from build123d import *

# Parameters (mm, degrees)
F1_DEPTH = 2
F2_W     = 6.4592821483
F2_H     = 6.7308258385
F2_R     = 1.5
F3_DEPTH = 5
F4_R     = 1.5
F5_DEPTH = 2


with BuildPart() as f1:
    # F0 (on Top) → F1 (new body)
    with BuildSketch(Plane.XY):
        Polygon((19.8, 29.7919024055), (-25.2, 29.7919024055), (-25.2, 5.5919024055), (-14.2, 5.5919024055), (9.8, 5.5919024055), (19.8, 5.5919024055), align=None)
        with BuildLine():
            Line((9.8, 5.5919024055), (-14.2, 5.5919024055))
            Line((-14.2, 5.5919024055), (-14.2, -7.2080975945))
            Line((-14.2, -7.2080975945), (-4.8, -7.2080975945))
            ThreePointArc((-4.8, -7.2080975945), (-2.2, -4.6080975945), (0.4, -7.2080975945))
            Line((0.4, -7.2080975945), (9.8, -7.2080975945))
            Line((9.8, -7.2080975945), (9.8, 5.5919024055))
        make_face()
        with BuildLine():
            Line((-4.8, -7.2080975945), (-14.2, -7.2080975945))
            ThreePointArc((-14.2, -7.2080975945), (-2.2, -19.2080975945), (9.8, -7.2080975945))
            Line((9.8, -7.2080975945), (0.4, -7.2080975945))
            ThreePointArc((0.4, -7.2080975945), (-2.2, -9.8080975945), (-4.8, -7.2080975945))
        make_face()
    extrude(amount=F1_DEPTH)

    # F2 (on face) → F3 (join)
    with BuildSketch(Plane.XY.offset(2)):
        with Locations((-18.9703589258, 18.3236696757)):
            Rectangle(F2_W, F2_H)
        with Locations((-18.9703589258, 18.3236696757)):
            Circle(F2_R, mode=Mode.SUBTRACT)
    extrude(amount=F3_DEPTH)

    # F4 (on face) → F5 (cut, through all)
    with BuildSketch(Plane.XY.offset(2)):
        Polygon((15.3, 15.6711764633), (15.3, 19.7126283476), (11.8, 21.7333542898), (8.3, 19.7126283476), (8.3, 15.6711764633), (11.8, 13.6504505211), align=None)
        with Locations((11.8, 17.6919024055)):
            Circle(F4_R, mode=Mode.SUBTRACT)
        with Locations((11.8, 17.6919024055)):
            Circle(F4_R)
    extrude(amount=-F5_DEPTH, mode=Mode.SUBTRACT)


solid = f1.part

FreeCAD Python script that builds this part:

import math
import FreeCAD as App
import Part
import Sketcher
from FreeCAD import Vector
Q = App.Units.Quantity

doc = App.newDocument("Part")
body = doc.addObject("PartDesign::Body", "Body")

# Sketch on XY plane
sketch1 = body.newObject("Sketcher::SketchObject", "Sketch")
sketch1.AttachmentSupport = (doc.getObject("XY_Plane"), [""])
sketch1.MapMode = "FlatFace"
sketch1.addGeometry([
    Part.LineSegment(Vector(19.8, 29.8, 0), Vector(-25.2, 29.8, 0)),  # 0
    Part.LineSegment(Vector(-25.2, 29.8, 0), Vector(-25.2, 5.6, 0)),  # 1
    Part.LineSegment(Vector(-25.2, 5.6, 0), Vector(-14.2, 5.6, 0)),  # 2
    Part.LineSegment(Vector(-14.2, 5.6, 0), Vector(-14.2, -7.2, 0)),  # 3
    Part.ArcOfCircle(Part.Circle(Vector(-2.2, -7.2, 0), Vector(0, 0, 1), 12), math.radians(180), math.radians(360)),  # 4
    Part.LineSegment(Vector(9.8, -7.2, 0), Vector(9.8, 5.6, 0)),  # 5
    Part.LineSegment(Vector(9.8, 5.6, 0), Vector(19.8, 5.6, 0)),  # 6
    Part.LineSegment(Vector(19.8, 5.6, 0), Vector(19.8, 29.8, 0)),  # 7
    Part.Circle(Vector(-2.2, -7.2, 0), Vector(0, 0, 1), 2.6),  # 8
], False)
sketch1.addConstraint([
    Sketcher.Constraint("Coincident", 0, 2, 1, 1),
    Sketcher.Constraint("Coincident", 1, 2, 2, 1),
    Sketcher.Constraint("Coincident", 2, 2, 3, 1),
    Sketcher.Constraint("Tangent", 3, 2, 4, 1),
    Sketcher.Constraint("Tangent", 4, 2, 5, 1),
    Sketcher.Constraint("Coincident", 5, 2, 6, 1),
    Sketcher.Constraint("Coincident", 6, 2, 7, 1),
    Sketcher.Constraint("Coincident", 7, 2, 0, 1),
    Sketcher.Constraint("Horizontal", 0),
    Sketcher.Constraint("Vertical", 1),
    Sketcher.Constraint("Horizontal", 2),
    Sketcher.Constraint("Vertical", 3),
    Sketcher.Constraint("Vertical", 5),
    Sketcher.Constraint("Horizontal", 6),
    Sketcher.Constraint("Vertical", 7),
    Sketcher.Constraint("Coincident", 8, 3, 4, 3),
    Sketcher.Constraint("Horizontal", 2, 2, 5, 2),
    Sketcher.Constraint("Radius", 4, 12.0),
    Sketcher.Constraint("Diameter", 8, 5.2),
    Sketcher.Constraint("DistanceX", 0, 2, 0, 1, 45.0),
    Sketcher.Constraint("DistanceX", 2, 1, 2, 2, 11.0),
    Sketcher.Constraint("DistanceY", 1, 2, 1, 1, 24.2),
    Sketcher.Constraint("DistanceY", 3, 2, 3, 1, 12.8),
    Sketcher.Constraint("DistanceX", 4, 3, -1, 1, 2.2),
    Sketcher.Constraint("DistanceY", 4, 3, -1, 1, 7.208098),
])
pad1 = body.newObject("PartDesign::Pad", "Pad")
pad1.Profile = sketch1
pad1.Length = 2

# Sketch on XY plane
sketch2 = body.newObject("Sketcher::SketchObject", "Sketch001")
sketch2.AttachmentSupport = (doc.getObject("XY_Plane"), [""])
sketch2.MapMode = "FlatFace"
sketch2.AttachmentOffset = App.Placement(Vector(0, 0, 2), App.Rotation())
sketch2.addGeometry([
    Part.LineSegment(Vector(-22.2, 21.7, 0), Vector(-22.2, 15, 0)),  # 0
    Part.LineSegment(Vector(-22.2, 15, 0), Vector(-15.7, 15, 0)),  # 1
    Part.LineSegment(Vector(-15.7, 15, 0), Vector(-15.7, 21.7, 0)),  # 2
    Part.LineSegment(Vector(-15.7, 21.7, 0), Vector(-22.2, 21.7, 0)),  # 3
    Part.Circle(Vector(-19, 18.3, 0), Vector(0, 0, 1), 1.5),  # 4
], False)
sketch2.addConstraint([
    Sketcher.Constraint("Coincident", 0, 2, 1, 1),
    Sketcher.Constraint("Coincident", 1, 2, 2, 1),
    Sketcher.Constraint("Coincident", 2, 2, 3, 1),
    Sketcher.Constraint("Coincident", 3, 2, 0, 1),
    Sketcher.Constraint("Vertical", 0),
    Sketcher.Constraint("Horizontal", 1),
    Sketcher.Constraint("Vertical", 2),
    Sketcher.Constraint("Horizontal", 3),
    Sketcher.Constraint("Diameter", 4, 3.0),
    Sketcher.Constraint("DistanceX", 0, 2, -1, 1, 22.2),
    Sketcher.Constraint("DistanceX", 1, 1, 1, 2, 6.459282),
    Sketcher.Constraint("DistanceY", 0, 2, 0, 1, 6.730826),
    Sketcher.Constraint("DistanceX", 4, 3, -1, 1, 18.970359),
    Sketcher.Constraint("DistanceY", -1, 1, 4, 3, 18.32367),
    Sketcher.Constraint("DistanceY", -1, 1, 0, 2, 14.958257),
])
pad2 = body.newObject("PartDesign::Pad", "Pad001")
pad2.Profile = sketch2
pad2.Length = 5

# Sketch on XY plane
sketch3 = body.newObject("Sketcher::SketchObject", "Sketch002")
sketch3.AttachmentSupport = (doc.getObject("XY_Plane"), [""])
sketch3.MapMode = "FlatFace"
sketch3.AttachmentOffset = App.Placement(Vector(0, 0, 2), App.Rotation())
sketch3.addGeometry([
    Part.LineSegment(Vector(15.3, 15.7, 0), Vector(15.3, 19.7, 0)),  # 0
    Part.LineSegment(Vector(15.3, 19.7, 0), Vector(11.8, 21.7, 0)),  # 1
    Part.LineSegment(Vector(11.8, 21.7, 0), Vector(8.3, 19.7, 0)),  # 2
    Part.LineSegment(Vector(8.3, 19.7, 0), Vector(8.3, 15.7, 0)),  # 3
    Part.LineSegment(Vector(8.3, 15.7, 0), Vector(11.8, 13.7, 0)),  # 4
    Part.LineSegment(Vector(11.8, 13.7, 0), Vector(15.3, 15.7, 0)),  # 5
], False)
sketch3.addConstraint([
    Sketcher.Constraint("Coincident", 0, 2, 1, 1),
    Sketcher.Constraint("Coincident", 1, 2, 2, 1),
    Sketcher.Constraint("Coincident", 2, 2, 3, 1),
    Sketcher.Constraint("Coincident", 3, 2, 4, 1),
    Sketcher.Constraint("Coincident", 4, 2, 5, 1),
    Sketcher.Constraint("Coincident", 5, 2, 0, 1),
    Sketcher.Constraint("Vertical", 0),
    Sketcher.Constraint("Vertical", 3),
    Sketcher.Constraint("Parallel", 1, 4),
    Sketcher.Constraint("Parallel", 2, 5),
    Sketcher.Constraint("Horizontal", 0, 2, 2, 2),
    Sketcher.Constraint("Horizontal", 3, 2, 5, 2),
    Sketcher.Constraint("Vertical", 1, 2, 4, 2),
    Sketcher.Constraint("Angle", 1, Q("150 deg")),
    Sketcher.Constraint("DistanceX", 2, 2, 0, 2, 7.0),
    Sketcher.Constraint("DistanceX", -1, 1, 0, 2, 15.3),
    Sketcher.Constraint("DistanceY", 0, 1, 0, 2, 4.041452),
    Sketcher.Constraint("DistanceY", -1, 1, 0, 2, 19.712628),
])
pocket1 = body.newObject("PartDesign::Pocket", "Pocket")
pocket1.Profile = sketch3
pocket1.Type = "ThroughAll"

doc.recompute()
